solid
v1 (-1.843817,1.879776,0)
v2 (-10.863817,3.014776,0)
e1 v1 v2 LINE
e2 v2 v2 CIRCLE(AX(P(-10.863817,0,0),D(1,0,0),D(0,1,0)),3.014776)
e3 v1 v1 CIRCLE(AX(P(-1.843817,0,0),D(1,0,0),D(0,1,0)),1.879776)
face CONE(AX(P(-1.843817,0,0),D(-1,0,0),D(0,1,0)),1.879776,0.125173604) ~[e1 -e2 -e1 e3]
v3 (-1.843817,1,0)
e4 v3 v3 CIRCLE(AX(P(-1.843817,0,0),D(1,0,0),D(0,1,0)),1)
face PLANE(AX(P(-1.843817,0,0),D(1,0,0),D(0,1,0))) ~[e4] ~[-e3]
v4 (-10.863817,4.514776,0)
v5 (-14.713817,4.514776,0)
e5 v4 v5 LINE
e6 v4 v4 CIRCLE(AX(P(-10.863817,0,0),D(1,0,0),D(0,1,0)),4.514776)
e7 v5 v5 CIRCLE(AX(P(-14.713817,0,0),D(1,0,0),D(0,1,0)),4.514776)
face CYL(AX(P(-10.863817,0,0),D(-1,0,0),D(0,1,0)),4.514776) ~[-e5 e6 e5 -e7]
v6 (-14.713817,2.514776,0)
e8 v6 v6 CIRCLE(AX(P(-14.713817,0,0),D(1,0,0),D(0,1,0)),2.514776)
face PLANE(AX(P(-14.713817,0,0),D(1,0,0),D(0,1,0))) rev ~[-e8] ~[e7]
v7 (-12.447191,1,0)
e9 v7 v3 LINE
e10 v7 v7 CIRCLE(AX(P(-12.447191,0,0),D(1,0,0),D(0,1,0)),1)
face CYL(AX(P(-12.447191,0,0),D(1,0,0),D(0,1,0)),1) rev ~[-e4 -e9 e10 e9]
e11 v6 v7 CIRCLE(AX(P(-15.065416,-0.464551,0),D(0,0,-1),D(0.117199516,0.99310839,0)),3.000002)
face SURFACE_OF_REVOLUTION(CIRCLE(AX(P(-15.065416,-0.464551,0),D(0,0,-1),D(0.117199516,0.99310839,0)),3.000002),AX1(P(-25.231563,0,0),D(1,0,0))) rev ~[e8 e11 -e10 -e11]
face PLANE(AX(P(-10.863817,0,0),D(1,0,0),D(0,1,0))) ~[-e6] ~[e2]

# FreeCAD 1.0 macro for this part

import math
import FreeCAD as App
import Part
import Sketcher

V = App.Vector

doc = App.newDocument("Part")
params = doc.addObject("Spreadsheet::Sheet", "Params")
for row, (alias, value) in enumerate([
    ("sketch1_radius", "3.000002 mm"),
    ("sketch1_height", "2 mm"),
    ("sketch1_height2", "1.5 mm"),
    ("sketch1_width", "3.85 mm"),
    ("revolution_angle", "360 deg"),
], start=1):
    params.set(f"A{row}", alias)
    params.set(f"B{row}", "=" + value)
    params.setAlias(f"B{row}", alias)

body = doc.addObject("PartDesign::Body", "Body")

# Sketch on XY plane
sketch1 = body.newObject("Sketcher::SketchObject", "Sketch")
sketch1.AttachmentSupport = (doc.getObject("XY_Plane"), [""])
sketch1.MapMode = "FlatFace"
sketch1.addGeometry([
    Part.LineSegment(V(-10.863817, 4.514776, 0), V(-14.713817, 4.514776, 0)),  # 0
    Part.LineSegment(V(-14.713817, 4.514776, 0), V(-14.713817, 2.514776, 0)),  # 1
    Part.ArcOfCircle(Part.Circle(V(-15.065416, -0.464551, 0), V(0, 0, 1), 3.000002), math.radians(29.221247), math.radians(83.269494)),  # 2
    Part.LineSegment(V(-12.447191, 1, 0), V(-1.843817, 1, 0)),  # 3
    Part.LineSegment(V(-1.843817, 1, 0), V(-1.843817, 1.879776, 0)),  # 4
    Part.LineSegment(V(-1.843817, 1.879776, 0), V(-10.863817, 3.014776, 0)),  # 5
    Part.LineSegment(V(-10.863817, 3.014776, 0), V(-10.863817, 4.514776, 0)),  # 6
], False)
sketch1.addConstraint([
    Sketcher.Constraint("Coincident", 0, 2, 1, 1),
    Sketcher.Constraint("Coincident", 1, 2, 2, 2),
    Sketcher.Constraint("Coincident", 2, 1, 3, 1),
    Sketcher.Constraint("Coincident", 3, 2, 4, 1),
    Sketcher.Constraint("Coincident", 4, 2, 5, 1),
    Sketcher.Constraint("Coincident", 5, 2, 6, 1),
    Sketcher.Constraint("Coincident", 6, 2, 0, 1),
    Sketcher.Constraint("Horizontal", 0),
    Sketcher.Constraint("Vertical", 1),
    Sketcher.Constraint("Horizontal", 3),
    Sketcher.Constraint("Vertical", 4),
    Sketcher.Constraint("Vertical", 6),
    Sketcher.Constraint("Radius", 2, 3.000002),
    Sketcher.Constraint("DistanceY", 1, 2, 1, 1, 2.0),
    Sketcher.Constraint("DistanceY", 6, 1, 6, 2, 1.5),
    Sketcher.Constraint("DistanceY", -1, 1, 2, 1, 1.0),
    Sketcher.Constraint("DistanceX", 0, 2, 0, 1, 3.85),
    Sketcher.Constraint("DistanceX", 1, 2, 3, 2, 12.87),
    Sketcher.Constraint("DistanceY", 4, 2, 1, 2, 0.635),
    Sketcher.Constraint("DistanceX", 2, 3, 0, 2, 0.351599),
    Sketcher.Constraint("DistanceX", 3, 1, 3, 2, 10.603374),
    Sketcher.Constraint("DistanceX", 2, 1, -1, 1, 12.447191),
])
sketch1.setExpression("Constraints[12]", "Params.sketch1_radius")
sketch1.setExpression("Constraints[13]", "Params.sketch1_height")
sketch1.setExpression("Constraints[14]", "Params.sketch1_height2")
sketch1.setExpression("Constraints[16]", "Params.sketch1_width")
revolution = body.newObject("PartDesign::Revolution", "Revolution")
revolution.Profile = sketch1
revolution.ReferenceAxis = (sketch1, ["H_Axis"])
revolution.setExpression("Angle", "Params.revolution_angle")

doc.recompute()
